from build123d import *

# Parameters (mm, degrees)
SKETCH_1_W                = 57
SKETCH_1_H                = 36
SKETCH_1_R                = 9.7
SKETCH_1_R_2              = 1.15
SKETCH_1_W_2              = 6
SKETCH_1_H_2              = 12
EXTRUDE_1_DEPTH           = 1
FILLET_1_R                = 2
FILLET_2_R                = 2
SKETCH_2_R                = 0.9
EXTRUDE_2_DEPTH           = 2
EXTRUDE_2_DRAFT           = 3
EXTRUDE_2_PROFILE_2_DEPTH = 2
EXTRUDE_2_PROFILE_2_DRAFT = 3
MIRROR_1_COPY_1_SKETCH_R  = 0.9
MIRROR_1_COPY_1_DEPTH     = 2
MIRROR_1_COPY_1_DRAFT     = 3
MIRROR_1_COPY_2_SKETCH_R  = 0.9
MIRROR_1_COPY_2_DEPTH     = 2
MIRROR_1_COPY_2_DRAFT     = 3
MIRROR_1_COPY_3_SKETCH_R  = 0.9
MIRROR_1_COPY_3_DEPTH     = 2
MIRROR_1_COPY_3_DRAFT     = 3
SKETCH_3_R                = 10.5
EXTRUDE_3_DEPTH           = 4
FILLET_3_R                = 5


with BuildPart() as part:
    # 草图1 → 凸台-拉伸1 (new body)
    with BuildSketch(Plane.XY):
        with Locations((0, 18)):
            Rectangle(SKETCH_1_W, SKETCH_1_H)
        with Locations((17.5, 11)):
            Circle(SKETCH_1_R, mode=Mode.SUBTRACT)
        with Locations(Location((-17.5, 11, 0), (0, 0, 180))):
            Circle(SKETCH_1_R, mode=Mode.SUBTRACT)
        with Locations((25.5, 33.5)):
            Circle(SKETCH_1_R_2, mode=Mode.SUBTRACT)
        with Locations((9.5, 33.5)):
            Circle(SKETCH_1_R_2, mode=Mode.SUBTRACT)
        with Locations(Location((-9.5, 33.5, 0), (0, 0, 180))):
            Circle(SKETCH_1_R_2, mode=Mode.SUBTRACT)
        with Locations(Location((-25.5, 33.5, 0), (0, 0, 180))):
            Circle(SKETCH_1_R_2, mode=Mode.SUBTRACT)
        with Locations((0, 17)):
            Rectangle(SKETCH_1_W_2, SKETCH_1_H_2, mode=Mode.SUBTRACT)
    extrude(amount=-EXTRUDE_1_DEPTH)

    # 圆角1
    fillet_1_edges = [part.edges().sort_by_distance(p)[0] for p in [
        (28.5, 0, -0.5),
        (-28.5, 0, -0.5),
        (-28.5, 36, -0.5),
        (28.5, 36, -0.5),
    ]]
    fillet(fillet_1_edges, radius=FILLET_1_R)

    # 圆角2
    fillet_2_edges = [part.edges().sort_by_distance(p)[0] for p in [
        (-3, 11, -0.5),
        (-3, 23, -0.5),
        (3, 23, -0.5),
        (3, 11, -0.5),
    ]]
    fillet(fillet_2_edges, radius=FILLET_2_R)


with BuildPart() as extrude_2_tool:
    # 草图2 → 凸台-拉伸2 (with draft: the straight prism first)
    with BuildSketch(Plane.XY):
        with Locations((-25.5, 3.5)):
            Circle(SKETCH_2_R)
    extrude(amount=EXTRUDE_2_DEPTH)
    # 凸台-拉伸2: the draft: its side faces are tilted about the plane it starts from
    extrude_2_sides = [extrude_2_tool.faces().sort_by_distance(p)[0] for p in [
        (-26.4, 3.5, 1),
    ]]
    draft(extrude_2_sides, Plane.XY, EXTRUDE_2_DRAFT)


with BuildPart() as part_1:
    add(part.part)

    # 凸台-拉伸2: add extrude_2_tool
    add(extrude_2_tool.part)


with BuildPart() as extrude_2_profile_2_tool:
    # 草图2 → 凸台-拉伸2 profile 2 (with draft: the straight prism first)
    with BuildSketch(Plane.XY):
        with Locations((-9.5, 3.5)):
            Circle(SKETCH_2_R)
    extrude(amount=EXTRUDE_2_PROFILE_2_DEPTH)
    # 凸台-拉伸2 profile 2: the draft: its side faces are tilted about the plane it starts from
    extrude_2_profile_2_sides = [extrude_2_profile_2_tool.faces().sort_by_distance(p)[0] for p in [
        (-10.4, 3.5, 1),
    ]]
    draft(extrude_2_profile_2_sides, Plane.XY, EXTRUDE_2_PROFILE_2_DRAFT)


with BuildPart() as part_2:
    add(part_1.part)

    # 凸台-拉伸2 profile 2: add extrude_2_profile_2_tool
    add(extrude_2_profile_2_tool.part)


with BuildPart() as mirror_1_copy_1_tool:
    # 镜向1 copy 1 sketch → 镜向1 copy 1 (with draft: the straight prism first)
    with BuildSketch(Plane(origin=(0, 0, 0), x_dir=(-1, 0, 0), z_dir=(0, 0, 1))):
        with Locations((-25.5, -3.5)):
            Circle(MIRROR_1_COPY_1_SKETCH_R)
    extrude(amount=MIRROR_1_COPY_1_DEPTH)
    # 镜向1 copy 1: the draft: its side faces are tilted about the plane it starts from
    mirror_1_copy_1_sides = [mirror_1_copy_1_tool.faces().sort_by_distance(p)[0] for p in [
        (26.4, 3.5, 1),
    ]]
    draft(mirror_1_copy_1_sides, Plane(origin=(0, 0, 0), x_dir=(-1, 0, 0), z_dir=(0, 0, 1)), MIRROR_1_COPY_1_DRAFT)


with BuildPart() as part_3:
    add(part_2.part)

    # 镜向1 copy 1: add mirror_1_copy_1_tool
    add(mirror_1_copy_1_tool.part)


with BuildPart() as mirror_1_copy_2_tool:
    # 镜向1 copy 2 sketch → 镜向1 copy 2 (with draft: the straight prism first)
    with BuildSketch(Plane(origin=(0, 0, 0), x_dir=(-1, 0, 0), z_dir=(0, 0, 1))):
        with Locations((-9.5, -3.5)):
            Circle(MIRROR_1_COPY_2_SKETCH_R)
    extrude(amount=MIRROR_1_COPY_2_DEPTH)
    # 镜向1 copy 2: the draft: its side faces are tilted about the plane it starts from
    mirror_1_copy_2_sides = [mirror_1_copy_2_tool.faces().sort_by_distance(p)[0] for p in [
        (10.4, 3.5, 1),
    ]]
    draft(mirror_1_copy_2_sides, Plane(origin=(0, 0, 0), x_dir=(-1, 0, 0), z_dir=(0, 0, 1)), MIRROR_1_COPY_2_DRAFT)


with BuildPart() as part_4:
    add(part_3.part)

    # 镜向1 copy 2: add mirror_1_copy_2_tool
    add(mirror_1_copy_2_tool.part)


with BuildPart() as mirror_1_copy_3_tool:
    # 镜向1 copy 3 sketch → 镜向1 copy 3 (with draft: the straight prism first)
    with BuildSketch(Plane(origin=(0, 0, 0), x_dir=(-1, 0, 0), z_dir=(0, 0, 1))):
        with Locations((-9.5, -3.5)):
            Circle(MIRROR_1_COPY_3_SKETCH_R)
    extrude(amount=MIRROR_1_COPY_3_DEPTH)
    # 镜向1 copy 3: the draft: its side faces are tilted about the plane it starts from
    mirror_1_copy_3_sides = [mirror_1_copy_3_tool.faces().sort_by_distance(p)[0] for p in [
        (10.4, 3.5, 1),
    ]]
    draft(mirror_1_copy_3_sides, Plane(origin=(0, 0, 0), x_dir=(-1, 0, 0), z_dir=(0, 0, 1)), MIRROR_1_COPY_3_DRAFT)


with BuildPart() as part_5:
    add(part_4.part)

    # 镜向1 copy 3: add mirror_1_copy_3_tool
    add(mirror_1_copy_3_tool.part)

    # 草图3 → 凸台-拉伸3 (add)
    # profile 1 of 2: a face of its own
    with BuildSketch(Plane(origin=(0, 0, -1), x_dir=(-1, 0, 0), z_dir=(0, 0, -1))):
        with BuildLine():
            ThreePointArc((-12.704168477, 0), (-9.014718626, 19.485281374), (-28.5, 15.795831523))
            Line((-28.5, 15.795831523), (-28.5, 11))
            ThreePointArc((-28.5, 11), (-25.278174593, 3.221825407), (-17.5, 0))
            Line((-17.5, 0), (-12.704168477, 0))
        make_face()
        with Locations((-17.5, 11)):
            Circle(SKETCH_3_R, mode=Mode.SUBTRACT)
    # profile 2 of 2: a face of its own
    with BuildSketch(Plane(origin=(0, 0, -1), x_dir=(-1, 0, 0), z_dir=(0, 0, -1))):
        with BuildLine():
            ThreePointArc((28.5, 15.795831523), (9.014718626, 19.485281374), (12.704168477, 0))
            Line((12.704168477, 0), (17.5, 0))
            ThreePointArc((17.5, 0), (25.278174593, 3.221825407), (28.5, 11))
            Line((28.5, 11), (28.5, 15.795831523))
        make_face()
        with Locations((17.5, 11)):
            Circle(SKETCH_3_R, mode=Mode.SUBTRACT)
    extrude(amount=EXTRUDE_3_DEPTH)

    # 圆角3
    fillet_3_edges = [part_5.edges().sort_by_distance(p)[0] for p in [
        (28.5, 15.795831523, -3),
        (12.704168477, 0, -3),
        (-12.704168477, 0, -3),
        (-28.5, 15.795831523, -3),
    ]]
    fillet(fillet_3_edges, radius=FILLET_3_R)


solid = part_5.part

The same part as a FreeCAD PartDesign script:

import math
import FreeCAD as App
import Part
import Sketcher


def edges_at(feature, points):
    """Names of the edges that pass closest to the given points."""
    edges = feature.Shape.Edges
    near = lambda p: min(range(len(edges)), key=lambda i: edges[i].distToShape(Part.Vertex(*p))[0])
    return sorted({f"Edge{near(p) + 1}" for p in points})


def faces_at(feature, points):
    """Names of the faces that lie closest to the given points."""
    faces = feature.Shape.Faces
    near = lambda p: min(range(len(faces)), key=lambda i: faces[i].distToShape(Part.Vertex(*p))[0])
    return sorted({f"Face{near(p) + 1}" for p in points})


def add_polygon(sketch, points):
    """Adds a closed chain of lines whose ends are joined by coincident constraints."""
    first, n = sketch.GeometryCount, len(points)
    for a, b in zip(points, points[1:] + points[:1]):
        sketch.addGeometry(Part.LineSegment(App.Vector(*a, 0), App.Vector(*b, 0)), False)
    for i in range(n):
        sketch.addConstraint(Sketcher.Constraint("Coincident", first + i, 2, first + (i + 1) % n, 1))

doc = App.newDocument("Part")
body = doc.addObject("PartDesign::Body", "Body")

# Sketch on XY plane
sketch1 = doc.addObject("Sketcher::SketchObject", "Sketch")
body.addObject(sketch1)
sketch1.AttachmentSupport = (doc.XY_Plane, [""])
sketch1.MapMode = "FlatFace"
add_polygon(sketch1, [(-28.5, 36), (-28.5, 0), (28.5, 0), (28.5, 36)])  # lines 0-3
sketch1.addGeometry(Part.Circle(App.Vector(-17.5, 11, 0), App.Vector(0, 0, 1), 9.7), False)  # 4
add_polygon(sketch1, [(3, 11), (-3, 11), (-3, 23), (3, 23)])  # lines 5-8
sketch1.addGeometry(Part.Circle(App.Vector(17.5, 11, 0), App.Vector(0, 0, 1), 9.7), False)  # 9
sketch1.addGeometry(Part.Circle(App.Vector(-25.5, 33.5, 0), App.Vector(0, 0, 1), 1.1), False)  # 10
sketch1.addGeometry(Part.Circle(App.Vector(-9.5, 33.5, 0), App.Vector(0, 0, 1), 1.1), False)  # 11
sketch1.addGeometry(Part.Circle(App.Vector(9.5, 33.5, 0), App.Vector(0, 0, 1), 1.1), False)  # 12
sketch1.addGeometry(Part.Circle(App.Vector(25.5, 33.5, 0), App.Vector(0, 0, 1), 1.1), False)  # 13
sketch1.addConstraint(Sketcher.Constraint("Vertical", 0))
sketch1.addConstraint(Sketcher.Constraint("Horizontal", 1))
sketch1.addConstraint(Sketcher.Constraint("Vertical", 2))
sketch1.addConstraint(Sketcher.Constraint("Horizontal", 3))
sketch1.addConstraint(Sketcher.Constraint("Horizontal", 5))
sketch1.addConstraint(Sketcher.Constraint("Vertical", 6))
sketch1.addConstraint(Sketcher.Constraint("Horizontal", 7))
sketch1.addConstraint(Sketcher.Constraint("Vertical", 8))
sketch1.addConstraint(Sketcher.Constraint("Equal", 4, 9))
sketch1.addConstraint(Sketcher.Constraint("Equal", 10, 11))
sketch1.addConstraint(Sketcher.Constraint("Equal", 11, 12))
sketch1.addConstraint(Sketcher.Constraint("Equal", 12, 13))
sketch1.addConstraint(Sketcher.Constraint("Symmetric", 0, 2, 1, 2, -1, 1))
sketch1.addConstraint(Sketcher.Constraint("Symmetric", 4, 3, 9, 3, -2))
sketch1.addConstraint(Sketcher.Constraint("Symmetric", 11, 3, 12, 3, -2))
sketch1.addConstraint(Sketcher.Constraint("Symmetric", 10, 3, 13, 3, -2))
sketch1.addConstraint(Sketcher.Constraint("Horizontal", 10, 3, 11, 3))
sketch1.addConstraint(Sketcher.Constraint("Horizontal", 9, 3, 5, 2))
sketch1.addConstraint(Sketcher.Constraint("Diameter", 4, 19.4))
sketch1.addConstraint(Sketcher.Constraint("Diameter", 10, 2.3))
sketch1.addConstraint(Sketcher.Constraint("DistanceX", 1, 1, 1, 2, 57.0))
sketch1.addConstraint(Sketcher.Constraint("DistanceX", 5, 2, 5, 1, 6.0))
sketch1.addConstraint(Sketcher.Constraint("DistanceY", 0, 2, 0, 1, 36.0))
sketch1.addConstraint(Sketcher.Constraint("DistanceY", 6, 1, 6, 2, 12.0))
sketch1.addConstraint(Sketcher.Constraint("DistanceY", -1, 1, 4, 3, 11.0))
sketch1.addConstraint(Sketcher.Constraint("DistanceX", 5, 2, -1, 1, 3.0))
sketch1.addConstraint(Sketcher.Constraint("DistanceX", 4, 3, 9, 3, 35.0))
sketch1.addConstraint(Sketcher.Constraint("DistanceX", 10, 3, 4, 3, 8.0))
sketch1.addConstraint(Sketcher.Constraint("DistanceX", 10, 3, 11, 3, 16.0))
sketch1.addConstraint(Sketcher.Constraint("DistanceY", -1, 1, 10, 3, 33.5))
pad1 = doc.addObject("PartDesign::Pad", "Pad")
body.addObject(pad1)
pad1.Profile = sketch1
pad1.Length = 1
pad1.Reversed = True
doc.recompute()

fillet = doc.addObject("PartDesign::Fillet", "Fillet")
body.addObject(fillet)
fillet.Base = (pad1, edges_at(pad1, [
    (28.5, 0, -0.5),
    (-28.5, 0, -0.5),
    (-28.5, 36, -0.5),
    (28.5, 36, -0.5),
]))
fillet.Radius = 2
doc.recompute()

fillet2 = doc.addObject("PartDesign::Fillet", "Fillet001")
body.addObject(fillet2)
fillet2.Base = (fillet, edges_at(fillet, [
    (-3, 11, -0.5),
    (-3, 23, -0.5),
    (3, 23, -0.5),
    (3, 11, -0.5),
]))
fillet2.Radius = 2
body2 = doc.addObject("PartDesign::Body", "Body001")

# Sketch on XY plane
sketch2 = doc.addObject("Sketcher::SketchObject", "Sketch001")
body2.addObject(sketch2)
sketch2.AttachmentSupport = (doc.getObject("XY_Plane001"), [""])
sketch2.MapMode = "FlatFace"
sketch2.addGeometry(Part.Circle(App.Vector(-25.5, 3.5, 0), App.Vector(0, 0, 1), 0.9), False)
sketch2.addConstraint(Sketcher.Constraint("Diameter", 0, 1.8))
sketch2.addConstraint(Sketcher.Constraint("DistanceX", 0, 3, -1, 1, 25.5))
sketch2.addConstraint(Sketcher.Constraint("DistanceY", -1, 1, 0, 3, 3.5))
pad2 = doc.addObject("PartDesign::Pad", "Pad001")
body2.addObject(pad2)
pad2.Profile = sketch2
pad2.Length = 2
doc.recompute()

draft = doc.addObject("PartDesign::Draft", "Draft")
body2.addObject(draft)
draft.Base = (pad2, faces_at(pad2, [(-26.4, 3.5, 1)]))
draft.NeutralPlane = (doc.getObject("XY_Plane001"), [""])
draft.Angle = 3
draft.Reversed = False
doc.recompute()

boolean = doc.addObject("PartDesign::Boolean", "Boolean")
body.addObject(boolean)
boolean.Type = "Fuse"
boolean.addObjects([body2])
body3 = doc.addObject("PartDesign::Body", "Body002")

# Sketch on XY plane
sketch3 = doc.addObject("Sketcher::SketchObject", "Sketch002")
body3.addObject(sketch3)
sketch3.AttachmentSupport = (doc.getObject("XY_Plane002"), [""])
sketch3.MapMode = "FlatFace"
sketch3.addGeometry(Part.Circle(App.Vector(-9.5, 3.5, 0), App.Vector(0, 0, 1), 0.9), False)
sketch3.addConstraint(Sketcher.Constraint("Diameter", 0, 1.8))
sketch3.addConstraint(Sketcher.Constraint("DistanceX", 0, 3, -1, 1, 9.5))
sketch3.addConstraint(Sketcher.Constraint("DistanceY", -1, 1, 0, 3, 3.5))
pad3 = doc.addObject("PartDesign::Pad", "Pad002")
body3.addObject(pad3)
pad3.Profile = sketch3
pad3.Length = 2
doc.recompute()

draft2 = doc.addObject("PartDesign::Draft", "Draft001")
body3.addObject(draft2)
draft2.Base = (pad3, faces_at(pad3, [(-10.4, 3.5, 1)]))
draft2.NeutralPlane = (doc.getObject("XY_Plane002"), [""])
draft2.Angle = 3
draft2.Reversed = False
doc.recompute()

boolean2 = doc.addObject("PartDesign::Boolean", "Boolean001")
body.addObject(boolean2)
boolean2.Type = "Fuse"
boolean2.addObjects([body3])
body4 = doc.addObject("PartDesign::Body", "Body003")

# Sketch on XY plane
sketch4 = doc.addObject("Sketcher::SketchObject", "Sketch003")
body4.addObject(sketch4)
sketch4.AttachmentSupport = (doc.getObject("XY_Plane003"), [""])
sketch4.MapMode = "FlatFace"
sketch4.addGeometry(Part.Circle(App.Vector(25.5, 3.5, 0), App.Vector(0, 0, 1), 0.9), False)
sketch4.addConstraint(Sketcher.Constraint("Diameter", 0, 1.8))
sketch4.addConstraint(Sketcher.Constraint("DistanceX", -1, 1, 0, 3, 25.5))
sketch4.addConstraint(Sketcher.Constraint("DistanceY", -1, 1, 0, 3, 3.5))
pad4 = doc.addObject("PartDesign::Pad", "Pad003")
body4.addObject(pad4)
pad4.Profile = sketch4
pad4.Length = 2
doc.recompute()

draft3 = doc.addObject("PartDesign::Draft", "Draft002")
body4.addObject(draft3)
draft3.Base = (pad4, faces_at(pad4, [(26.4, 3.5, 1)]))
draft3.NeutralPlane = (doc.getObject("XY_Plane003"), [""])
draft3.Angle = 3
draft3.Reversed = False
doc.recompute()

boolean3 = doc.addObject("PartDesign::Boolean", "Boolean002")
body.addObject(boolean3)
boolean3.Type = "Fuse"
boolean3.addObjects([body4])
body5 = doc.addObject("PartDesign::Body", "Body004")

# Sketch on XY plane
sketch5 = doc.addObject("Sketcher::SketchObject", "Sketch004")
body5.addObject(sketch5)
sketch5.AttachmentSupport = (doc.getObject("XY_Plane004"), [""])
sketch5.MapMode = "FlatFace"
sketch5.addGeometry(Part.Circle(App.Vector(9.5, 3.5, 0), App.Vector(0, 0, 1), 0.9), False)
sketch5.addConstraint(Sketcher.Constraint("Diameter", 0, 1.8))
sketch5.addConstraint(Sketcher.Constraint("DistanceX", -1, 1, 0, 3, 9.5))
sketch5.addConstraint(Sketcher.Constraint("DistanceY", -1, 1, 0, 3, 3.5))
pad5 = doc.addObject("PartDesign::Pad", "Pad004")
body5.addObject(pad5)
pad5.Profile = sketch5
pad5.Length = 2
doc.recompute()

draft4 = doc.addObject("PartDesign::Draft", "Draft003")
body5.addObject(draft4)
draft4.Base = (pad5, faces_at(pad5, [(10.4, 3.5, 1)]))
draft4.NeutralPlane = (doc.getObject("XY_Plane004"), [""])
draft4.Angle = 3
draft4.Reversed = False
doc.recompute()

boolean4 = doc.addObject("PartDesign::Boolean", "Boolean003")
body.addObject(boolean4)
boolean4.Type = "Fuse"
boolean4.addObjects([body5])
body6 = doc.addObject("PartDesign::Body", "Body005")

# Sketch on XY plane
sketch6 = doc.addObject("Sketcher::SketchObject", "Sketch005")
body6.addObject(sketch6)
sketch6.AttachmentSupport = (doc.getObject("XY_Plane005"), [""])
sketch6.MapMode = "FlatFace"
sketch6.addGeometry(Part.Circle(App.Vector(9.5, 3.5, 0), App.Vector(0, 0, 1), 0.9), False)
sketch6.addConstraint(Sketcher.Constraint("Diameter", 0, 1.8))
sketch6.addConstraint(Sketcher.Constraint("DistanceX", -1, 1, 0, 3, 9.5))
sketch6.addConstraint(Sketcher.Constraint("DistanceY", -1, 1, 0, 3, 3.5))
pad6 = doc.addObject("PartDesign::Pad", "Pad005")
body6.addObject(pad6)
pad6.Profile = sketch6
pad6.Length = 2
doc.recompute()

draft5 = doc.addObject("PartDesign::Draft", "Draft004")
body6.addObject(draft5)
draft5.Base = (pad6, faces_at(pad6, [(10.4, 3.5, 1)]))
draft5.NeutralPlane = (doc.getObject("XY_Plane005"), [""])
draft5.Angle = 3
draft5.Reversed = False
doc.recompute()

boolean5 = doc.addObject("PartDesign::Boolean", "Boolean004")
body.addObject(boolean5)
boolean5.Type = "Fuse"
boolean5.addObjects([body6])

# Sketch on XY plane
sketch7 = doc.addObject("Sketcher::SketchObject", "Sketch006")
body.addObject(sketch7)
sketch7.AttachmentSupport = (doc.XY_Plane, [""])
sketch7.MapMode = "FlatFace"
sketch7.AttachmentOffset = App.Placement(App.Vector(0, 0, -1), App.Rotation())
sketch7.addGeometry(Part.ArcOfCircle(Part.Circle(App.Vector(17.5, 11, 0), App.Vector(0, 0, 1), 12), math.radians(24), math.radians(246)), False)
sketch7.addGeometry(Part.LineSegment(App.Vector(28.5, 15.8, 0), App.Vector(28.5, 11, 0)), False)
sketch7.addGeometry(Part.ArcOfCircle(Part.Circle(App.Vector(17.5, 11, 0), App.Vector(0, 0, 1), 11), math.radians(-90), math.radians(0)), False)
sketch7.addGeometry(Part.LineSegment(App.Vector(17.5, 0, 0), App.Vector(12.7, 0, 0)), False)
sketch7.addGeometry(Part.Circle(App.Vector(17.5, 11, 0), App.Vector(0, 0, 1), 10.5), False)
sketch7.addGeometry(Part.ArcOfCircle(Part.Circle(App.Vector(-17.5, 11, 0), App.Vector(0, 0, 1), 12), math.radians(-66), math.radians(156)), False)
sketch7.addGeometry(Part.LineSegment(App.Vector(-12.7, 0, 0), App.Vector(-17.5, 0, 0)), False)
sketch7.addGeometry(Part.ArcOfCircle(Part.Circle(App.Vector(-17.5, 11, 0), App.Vector(0, 0, 1), 11), math.radians(180), math.radians(270)), False)
sketch7.addGeometry(Part.LineSegment(App.Vector(-28.5, 11, 0), App.Vector(-28.5, 15.8, 0)), False)
sketch7.addGeometry(Part.Circle(App.Vector(-17.5, 11, 0), App.Vector(0, 0, 1), 10.5), False)
sketch7.addConstraint(Sketcher.Constraint("Coincident", 0, 1, 1, 1))
sketch7.addConstraint(Sketcher.Constraint("Tangent", 1, 2, 2, 2))
sketch7.addConstraint(Sketcher.Constraint("Tangent", 2, 1, 3, 1))
sketch7.addConstraint(Sketcher.Constraint("Coincident", 3, 2, 0, 2))
sketch7.addConstraint(Sketcher.Constraint("Coincident", 5, 1, 6, 1))
sketch7.addConstraint(Sketcher.Constraint("Tangent", 6, 2, 7, 2))
sketch7.addConstraint(Sketcher.Constraint("Tangent", 7, 1, 8, 1))
sketch7.addConstraint(Sketcher.Constraint("Coincident", 8, 2, 5, 2))
sketch7.addConstraint(Sketcher.Constraint("Vertical", 1))
sketch7.addConstraint(Sketcher.Constraint("Horizontal", 3))
sketch7.addConstraint(Sketcher.Constraint("Horizontal", 6))
sketch7.addConstraint(Sketcher.Constraint("Vertical", 8))
sketch7.addConstraint(Sketcher.Constraint("Coincident", 2, 3, 0, 3))
sketch7.addConstraint(Sketcher.Constraint("Coincident", 4, 3, 0, 3))
sketch7.addConstraint(Sketcher.Constraint("Coincident", 7, 3, 5, 3))
sketch7.addConstraint(Sketcher.Constraint("Coincident", 9, 3, 5, 3))
sketch7.addConstraint(Sketcher.Constraint("Equal", 0, 5))
sketch7.addConstraint(Sketcher.Constraint("Equal", 2, 7))
sketch7.addConstraint(Sketcher.Constraint("Equal", 4, 9))
sketch7.addConstraint(Sketcher.Constraint("Symmetric", 3, 2, 5, 1, -1, 1))
sketch7.addConstraint(Sketcher.Constraint("PointOnObject", 2, 1, -1))
sketch7.addConstraint(Sketcher.Constraint("Diameter", 4, 21.0))
sketch7.addConstraint(Sketcher.Constraint("Radius", 0, 12.0))
sketch7.addConstraint(Sketcher.Constraint("Radius", 2, 11.0))
sketch7.addConstraint(Sketcher.Constraint("DistanceX", 5, 3, 0, 3, 35.0))
pad7 = doc.addObject("PartDesign::Pad", "Pad006")
body.addObject(pad7)
pad7.Profile = sketch7
pad7.Length = 4
pad7.Reversed = True
doc.recompute()

fillet3 = doc.addObject("PartDesign::Fillet", "Fillet002")
body.addObject(fillet3)
fillet3.Base = (pad7, edges_at(pad7, [
    (28.5, 15.796, -3),
    (12.704, 0, -3),
    (-12.704, 0, -3),
    (-28.5, 15.796, -3),
]))
fillet3.Radius = 5

doc.recompute()
